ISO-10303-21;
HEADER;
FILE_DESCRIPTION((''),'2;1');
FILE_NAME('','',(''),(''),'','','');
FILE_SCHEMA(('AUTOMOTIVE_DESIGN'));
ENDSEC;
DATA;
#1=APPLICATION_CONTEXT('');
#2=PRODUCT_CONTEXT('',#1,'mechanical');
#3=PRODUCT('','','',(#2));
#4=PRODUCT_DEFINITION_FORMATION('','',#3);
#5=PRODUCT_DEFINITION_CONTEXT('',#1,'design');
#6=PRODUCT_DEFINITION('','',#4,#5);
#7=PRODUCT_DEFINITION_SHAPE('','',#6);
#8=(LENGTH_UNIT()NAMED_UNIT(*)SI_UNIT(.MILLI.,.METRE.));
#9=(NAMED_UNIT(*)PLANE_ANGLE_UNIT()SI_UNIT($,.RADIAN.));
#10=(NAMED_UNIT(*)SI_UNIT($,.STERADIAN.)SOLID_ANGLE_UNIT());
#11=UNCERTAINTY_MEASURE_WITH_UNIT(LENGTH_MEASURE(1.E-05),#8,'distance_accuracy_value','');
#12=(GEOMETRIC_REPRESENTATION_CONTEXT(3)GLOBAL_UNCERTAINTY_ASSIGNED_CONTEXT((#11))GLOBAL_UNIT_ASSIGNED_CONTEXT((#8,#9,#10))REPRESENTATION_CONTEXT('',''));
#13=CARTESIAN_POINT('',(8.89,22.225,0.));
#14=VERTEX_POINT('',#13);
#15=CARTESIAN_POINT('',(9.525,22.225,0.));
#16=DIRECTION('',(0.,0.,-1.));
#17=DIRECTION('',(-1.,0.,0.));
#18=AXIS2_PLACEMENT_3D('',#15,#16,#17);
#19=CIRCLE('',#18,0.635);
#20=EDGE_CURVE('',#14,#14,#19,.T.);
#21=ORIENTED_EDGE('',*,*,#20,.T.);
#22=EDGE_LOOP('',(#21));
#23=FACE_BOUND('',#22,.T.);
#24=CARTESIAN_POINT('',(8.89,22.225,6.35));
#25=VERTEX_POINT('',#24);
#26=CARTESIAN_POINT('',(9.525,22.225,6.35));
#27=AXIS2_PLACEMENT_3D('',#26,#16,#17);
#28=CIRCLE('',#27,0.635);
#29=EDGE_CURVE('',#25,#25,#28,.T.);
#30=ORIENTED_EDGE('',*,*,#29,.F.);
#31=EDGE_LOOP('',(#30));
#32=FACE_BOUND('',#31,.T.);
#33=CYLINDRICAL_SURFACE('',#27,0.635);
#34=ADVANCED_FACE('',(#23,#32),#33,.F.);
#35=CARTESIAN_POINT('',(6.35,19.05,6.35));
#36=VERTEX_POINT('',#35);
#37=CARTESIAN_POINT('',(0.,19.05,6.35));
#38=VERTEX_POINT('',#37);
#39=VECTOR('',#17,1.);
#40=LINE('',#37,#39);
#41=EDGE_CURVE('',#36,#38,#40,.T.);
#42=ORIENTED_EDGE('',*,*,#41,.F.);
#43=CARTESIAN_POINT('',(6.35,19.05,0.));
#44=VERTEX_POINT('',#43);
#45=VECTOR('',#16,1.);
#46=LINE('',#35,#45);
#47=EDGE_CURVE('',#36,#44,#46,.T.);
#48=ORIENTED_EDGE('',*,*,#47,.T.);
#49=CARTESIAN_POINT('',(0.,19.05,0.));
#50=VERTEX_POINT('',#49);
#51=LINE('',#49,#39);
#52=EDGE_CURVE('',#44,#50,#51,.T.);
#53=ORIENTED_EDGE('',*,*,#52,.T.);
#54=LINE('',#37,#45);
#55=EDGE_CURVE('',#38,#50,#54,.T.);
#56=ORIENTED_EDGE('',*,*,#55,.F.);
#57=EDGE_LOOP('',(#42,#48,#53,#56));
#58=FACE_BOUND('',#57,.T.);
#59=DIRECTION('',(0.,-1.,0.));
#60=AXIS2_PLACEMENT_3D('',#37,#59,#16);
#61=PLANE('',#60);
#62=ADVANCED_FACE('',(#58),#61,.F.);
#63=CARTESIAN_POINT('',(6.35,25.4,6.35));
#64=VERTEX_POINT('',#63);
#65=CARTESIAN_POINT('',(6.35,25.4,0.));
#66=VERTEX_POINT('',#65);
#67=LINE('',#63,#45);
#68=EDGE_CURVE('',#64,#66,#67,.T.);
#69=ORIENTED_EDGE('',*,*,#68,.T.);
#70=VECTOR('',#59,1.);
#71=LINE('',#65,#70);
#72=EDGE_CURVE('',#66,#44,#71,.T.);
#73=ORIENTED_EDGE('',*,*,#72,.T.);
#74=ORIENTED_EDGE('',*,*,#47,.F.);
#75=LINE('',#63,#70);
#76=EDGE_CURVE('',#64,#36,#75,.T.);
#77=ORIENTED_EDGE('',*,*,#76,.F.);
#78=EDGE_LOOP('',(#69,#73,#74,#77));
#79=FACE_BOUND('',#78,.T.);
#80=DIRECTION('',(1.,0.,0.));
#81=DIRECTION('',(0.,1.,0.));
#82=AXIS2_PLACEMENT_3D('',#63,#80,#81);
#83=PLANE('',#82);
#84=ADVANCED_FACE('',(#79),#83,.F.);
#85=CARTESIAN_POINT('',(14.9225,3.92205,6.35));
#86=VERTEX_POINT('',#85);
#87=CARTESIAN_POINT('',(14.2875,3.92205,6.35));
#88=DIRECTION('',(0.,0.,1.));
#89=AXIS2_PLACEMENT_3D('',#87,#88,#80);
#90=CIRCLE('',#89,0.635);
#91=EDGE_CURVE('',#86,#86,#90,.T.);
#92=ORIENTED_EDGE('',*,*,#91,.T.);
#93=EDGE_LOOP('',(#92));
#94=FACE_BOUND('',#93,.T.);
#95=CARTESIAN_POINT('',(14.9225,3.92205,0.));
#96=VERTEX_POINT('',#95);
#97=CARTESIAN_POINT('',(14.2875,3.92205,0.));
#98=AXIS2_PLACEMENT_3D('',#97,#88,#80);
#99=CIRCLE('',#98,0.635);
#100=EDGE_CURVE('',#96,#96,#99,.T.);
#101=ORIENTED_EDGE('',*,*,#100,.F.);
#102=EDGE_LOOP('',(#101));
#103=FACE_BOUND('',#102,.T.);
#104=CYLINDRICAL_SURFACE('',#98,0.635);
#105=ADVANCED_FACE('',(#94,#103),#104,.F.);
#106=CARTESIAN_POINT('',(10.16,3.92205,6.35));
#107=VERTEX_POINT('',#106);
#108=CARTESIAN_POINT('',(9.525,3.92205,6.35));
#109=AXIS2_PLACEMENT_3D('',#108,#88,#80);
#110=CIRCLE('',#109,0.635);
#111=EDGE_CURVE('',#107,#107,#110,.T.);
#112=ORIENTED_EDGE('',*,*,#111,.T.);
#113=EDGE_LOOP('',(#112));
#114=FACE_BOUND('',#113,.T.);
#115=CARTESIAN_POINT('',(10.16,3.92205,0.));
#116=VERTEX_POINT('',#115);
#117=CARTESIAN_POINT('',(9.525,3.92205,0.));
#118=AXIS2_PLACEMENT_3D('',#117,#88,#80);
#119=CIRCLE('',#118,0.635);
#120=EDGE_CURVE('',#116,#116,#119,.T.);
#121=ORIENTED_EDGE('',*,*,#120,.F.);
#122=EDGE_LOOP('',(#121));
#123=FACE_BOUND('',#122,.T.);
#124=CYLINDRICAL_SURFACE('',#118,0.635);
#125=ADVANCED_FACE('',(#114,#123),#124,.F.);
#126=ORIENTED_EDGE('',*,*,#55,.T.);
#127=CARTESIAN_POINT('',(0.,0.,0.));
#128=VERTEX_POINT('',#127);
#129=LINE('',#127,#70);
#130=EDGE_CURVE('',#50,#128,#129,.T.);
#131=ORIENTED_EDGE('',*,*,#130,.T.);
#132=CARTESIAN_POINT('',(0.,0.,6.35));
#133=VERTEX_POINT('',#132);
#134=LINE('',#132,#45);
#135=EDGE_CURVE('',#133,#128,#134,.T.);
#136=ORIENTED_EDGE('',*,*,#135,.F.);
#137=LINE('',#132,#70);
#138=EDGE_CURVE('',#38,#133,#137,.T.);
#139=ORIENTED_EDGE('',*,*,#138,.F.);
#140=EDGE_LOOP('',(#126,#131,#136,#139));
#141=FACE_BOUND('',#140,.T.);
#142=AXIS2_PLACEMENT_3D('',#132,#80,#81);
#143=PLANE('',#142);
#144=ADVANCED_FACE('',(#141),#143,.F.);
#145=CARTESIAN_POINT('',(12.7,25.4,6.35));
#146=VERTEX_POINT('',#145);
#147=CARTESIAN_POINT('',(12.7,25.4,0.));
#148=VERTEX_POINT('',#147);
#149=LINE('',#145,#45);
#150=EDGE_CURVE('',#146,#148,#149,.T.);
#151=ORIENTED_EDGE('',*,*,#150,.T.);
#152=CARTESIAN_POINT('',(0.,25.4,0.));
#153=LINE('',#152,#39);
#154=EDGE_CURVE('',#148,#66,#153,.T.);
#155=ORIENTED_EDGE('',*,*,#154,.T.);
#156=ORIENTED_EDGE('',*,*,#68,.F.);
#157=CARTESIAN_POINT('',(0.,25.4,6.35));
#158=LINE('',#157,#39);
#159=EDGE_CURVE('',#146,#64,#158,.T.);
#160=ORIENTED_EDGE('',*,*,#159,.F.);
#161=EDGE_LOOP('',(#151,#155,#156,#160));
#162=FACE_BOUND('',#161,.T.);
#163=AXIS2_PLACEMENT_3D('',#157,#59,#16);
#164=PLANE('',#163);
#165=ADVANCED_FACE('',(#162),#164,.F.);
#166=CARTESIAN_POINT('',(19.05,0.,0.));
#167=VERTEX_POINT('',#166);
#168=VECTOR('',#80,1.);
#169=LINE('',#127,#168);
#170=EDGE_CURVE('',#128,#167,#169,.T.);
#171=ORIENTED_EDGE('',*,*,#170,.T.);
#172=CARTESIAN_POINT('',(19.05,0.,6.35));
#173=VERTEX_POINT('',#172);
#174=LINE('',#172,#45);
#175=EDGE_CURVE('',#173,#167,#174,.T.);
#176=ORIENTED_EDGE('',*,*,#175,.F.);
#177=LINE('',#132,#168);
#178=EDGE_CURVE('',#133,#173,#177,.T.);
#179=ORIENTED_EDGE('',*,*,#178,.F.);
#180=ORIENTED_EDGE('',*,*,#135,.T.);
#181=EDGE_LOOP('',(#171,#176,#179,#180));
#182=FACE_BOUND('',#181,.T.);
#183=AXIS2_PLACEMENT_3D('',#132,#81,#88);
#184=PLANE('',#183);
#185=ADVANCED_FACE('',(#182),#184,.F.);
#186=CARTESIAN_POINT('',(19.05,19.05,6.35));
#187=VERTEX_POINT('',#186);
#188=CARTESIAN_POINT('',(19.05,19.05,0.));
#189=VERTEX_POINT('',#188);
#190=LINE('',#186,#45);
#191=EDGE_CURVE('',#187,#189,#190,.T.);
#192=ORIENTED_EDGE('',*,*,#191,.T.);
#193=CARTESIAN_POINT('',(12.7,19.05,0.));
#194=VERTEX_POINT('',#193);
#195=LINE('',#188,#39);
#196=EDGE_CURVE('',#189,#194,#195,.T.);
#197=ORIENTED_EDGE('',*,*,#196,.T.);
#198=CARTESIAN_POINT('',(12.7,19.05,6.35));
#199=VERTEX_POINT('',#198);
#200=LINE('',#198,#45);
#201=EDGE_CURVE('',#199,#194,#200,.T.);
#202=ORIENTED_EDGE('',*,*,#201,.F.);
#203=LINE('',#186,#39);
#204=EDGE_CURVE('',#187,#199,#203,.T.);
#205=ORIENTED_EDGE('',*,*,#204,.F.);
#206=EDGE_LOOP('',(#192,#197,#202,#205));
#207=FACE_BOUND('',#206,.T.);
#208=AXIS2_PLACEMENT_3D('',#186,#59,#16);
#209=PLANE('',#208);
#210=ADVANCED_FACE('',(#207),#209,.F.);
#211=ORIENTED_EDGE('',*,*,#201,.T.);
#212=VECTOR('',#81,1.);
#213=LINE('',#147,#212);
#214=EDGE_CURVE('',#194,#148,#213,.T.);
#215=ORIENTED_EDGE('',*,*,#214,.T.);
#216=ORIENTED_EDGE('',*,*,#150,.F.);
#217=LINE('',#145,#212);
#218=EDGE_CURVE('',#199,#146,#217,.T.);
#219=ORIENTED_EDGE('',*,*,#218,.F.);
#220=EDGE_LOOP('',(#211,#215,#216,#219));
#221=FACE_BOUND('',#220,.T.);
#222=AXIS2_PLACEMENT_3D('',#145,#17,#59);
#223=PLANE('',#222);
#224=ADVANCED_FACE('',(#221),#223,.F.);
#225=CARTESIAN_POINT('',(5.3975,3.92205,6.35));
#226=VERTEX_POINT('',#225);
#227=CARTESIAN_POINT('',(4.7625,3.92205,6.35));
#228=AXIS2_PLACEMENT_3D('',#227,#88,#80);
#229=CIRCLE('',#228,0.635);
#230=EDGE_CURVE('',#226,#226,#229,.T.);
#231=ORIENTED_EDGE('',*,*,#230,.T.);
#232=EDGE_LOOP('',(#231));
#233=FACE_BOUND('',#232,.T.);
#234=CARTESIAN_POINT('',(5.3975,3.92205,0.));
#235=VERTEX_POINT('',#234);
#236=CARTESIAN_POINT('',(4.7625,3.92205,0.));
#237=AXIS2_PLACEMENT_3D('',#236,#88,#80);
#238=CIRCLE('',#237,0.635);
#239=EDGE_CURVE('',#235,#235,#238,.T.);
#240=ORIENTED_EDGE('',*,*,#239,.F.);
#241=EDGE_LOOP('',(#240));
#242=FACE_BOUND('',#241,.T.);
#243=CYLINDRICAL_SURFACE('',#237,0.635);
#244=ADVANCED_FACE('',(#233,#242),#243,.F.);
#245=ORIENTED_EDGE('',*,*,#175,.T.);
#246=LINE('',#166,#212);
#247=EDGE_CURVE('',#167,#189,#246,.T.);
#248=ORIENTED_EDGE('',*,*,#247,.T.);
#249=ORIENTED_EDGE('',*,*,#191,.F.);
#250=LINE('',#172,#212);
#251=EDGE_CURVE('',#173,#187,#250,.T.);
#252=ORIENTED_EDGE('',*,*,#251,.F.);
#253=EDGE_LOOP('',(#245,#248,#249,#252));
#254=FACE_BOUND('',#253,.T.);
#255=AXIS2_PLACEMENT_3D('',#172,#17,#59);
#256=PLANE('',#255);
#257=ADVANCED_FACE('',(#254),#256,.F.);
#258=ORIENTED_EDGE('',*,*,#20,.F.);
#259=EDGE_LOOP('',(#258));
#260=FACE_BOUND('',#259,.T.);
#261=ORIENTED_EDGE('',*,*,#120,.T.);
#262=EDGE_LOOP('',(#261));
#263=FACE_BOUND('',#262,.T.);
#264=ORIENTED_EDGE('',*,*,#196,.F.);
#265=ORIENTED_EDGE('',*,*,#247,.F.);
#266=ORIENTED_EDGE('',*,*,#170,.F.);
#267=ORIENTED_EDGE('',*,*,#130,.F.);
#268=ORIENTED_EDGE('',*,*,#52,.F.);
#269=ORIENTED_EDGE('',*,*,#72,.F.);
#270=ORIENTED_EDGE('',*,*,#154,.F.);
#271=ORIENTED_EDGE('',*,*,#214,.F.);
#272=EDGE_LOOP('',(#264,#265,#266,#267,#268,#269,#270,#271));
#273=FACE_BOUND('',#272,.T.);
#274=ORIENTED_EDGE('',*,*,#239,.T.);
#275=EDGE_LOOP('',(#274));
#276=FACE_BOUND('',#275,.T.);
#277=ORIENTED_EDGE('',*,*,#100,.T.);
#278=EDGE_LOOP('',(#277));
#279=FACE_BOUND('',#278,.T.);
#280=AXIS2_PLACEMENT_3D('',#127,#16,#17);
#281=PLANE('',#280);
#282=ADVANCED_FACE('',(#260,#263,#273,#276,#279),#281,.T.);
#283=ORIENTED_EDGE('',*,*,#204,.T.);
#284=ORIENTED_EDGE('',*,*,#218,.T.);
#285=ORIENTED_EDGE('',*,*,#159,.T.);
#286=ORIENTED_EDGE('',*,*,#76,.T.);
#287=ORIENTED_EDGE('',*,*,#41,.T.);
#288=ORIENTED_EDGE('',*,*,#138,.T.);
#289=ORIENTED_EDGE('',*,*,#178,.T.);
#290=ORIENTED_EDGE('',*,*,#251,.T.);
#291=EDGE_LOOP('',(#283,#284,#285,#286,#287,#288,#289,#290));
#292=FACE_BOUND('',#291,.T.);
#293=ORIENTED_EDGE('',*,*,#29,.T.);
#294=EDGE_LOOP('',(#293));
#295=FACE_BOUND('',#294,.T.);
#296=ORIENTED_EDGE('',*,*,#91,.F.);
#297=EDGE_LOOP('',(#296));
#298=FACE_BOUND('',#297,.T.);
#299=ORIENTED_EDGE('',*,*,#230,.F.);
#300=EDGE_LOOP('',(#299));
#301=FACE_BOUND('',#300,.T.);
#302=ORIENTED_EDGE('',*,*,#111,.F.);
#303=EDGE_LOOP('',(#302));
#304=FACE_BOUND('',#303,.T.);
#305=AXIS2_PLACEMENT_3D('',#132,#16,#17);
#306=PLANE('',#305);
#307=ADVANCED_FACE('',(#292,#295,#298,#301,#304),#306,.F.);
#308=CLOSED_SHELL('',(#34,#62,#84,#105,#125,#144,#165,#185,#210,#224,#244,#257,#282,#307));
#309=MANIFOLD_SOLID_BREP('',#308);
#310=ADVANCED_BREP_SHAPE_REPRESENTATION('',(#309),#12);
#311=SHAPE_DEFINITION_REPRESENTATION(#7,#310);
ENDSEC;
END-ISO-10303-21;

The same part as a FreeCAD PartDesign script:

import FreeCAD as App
import Part
import Sketcher
from FreeCAD import Vector
Q = App.Units.Quantity


def add_polygon(sketch, points):
    """Adds a closed chain of lines whose ends are joined by coincident constraints."""
    first, n = sketch.GeometryCount, len(points)
    for a, b in zip(points, points[1:] + points[:1]):
        sketch.addGeometry(Part.LineSegment(App.Vector(*a, 0), App.Vector(*b, 0)), False)
    for i in range(n):
        sketch.addConstraint(Sketcher.Constraint("Coincident", first + i, 2, first + (i + 1) % n, 1))

doc = App.newDocument("Part")
params = doc.addObject("Spreadsheet::Sheet", "Params")
for row, (alias, value) in enumerate([
    ("sketch1_height", "1 in"),
    ("sketch1_width", "0.75 in"),
    ("pad1_length", "0.25 in"),
    ("sketch2_width", "0.25 in"),
    ("sketch3_width", "0.25 in"),
    ("sketch4_diameter", "0.05 in"),
    ("sketch5_diameter", "0.05 in"),
], start=1):
    params.set(f"A{row}", alias)
    params.set(f"B{row}", "=" + value)
    params.setAlias(f"B{row}", alias)

body = doc.addObject("PartDesign::Body", "Body")

# Sketch on XY plane
sketch1 = doc.addObject("Sketcher::SketchObject", "Sketch")
body.addObject(sketch1)
sketch1.AttachmentSupport = (doc.XY_Plane, [""])
sketch1.MapMode = "FlatFace"
add_polygon(sketch1, [(0, 25.4), (0, 0), (19.05, 0), (19.05, 25.4)])  # lines 0-3
sketch1.addConstraint([
    Sketcher.Constraint("Vertical", 0),
    Sketcher.Constraint("Horizontal", 1),
    Sketcher.Constraint("Vertical", 2),
    Sketcher.Constraint("Horizontal", 3),
    Sketcher.Constraint("Coincident", 0, 2, -1, 1),
    Sketcher.Constraint("DistanceY", 0, 2, 0, 1, Q("1 in")),
    Sketcher.Constraint("DistanceX", 1, 1, 1, 2, Q("0.75 in")),
])
sketch1.setExpression("Constraints[9]", "Params.sketch1_height")
sketch1.setExpression("Constraints[10]", "Params.sketch1_width")
pad1 = doc.addObject("PartDesign::Pad", "Pad")
body.addObject(pad1)
pad1.Profile = sketch1
pad1.setExpression("Length", "Params.pad1_length")

# Sketch on XY plane
sketch2 = doc.addObject("Sketcher::SketchObject", "Sketch001")
body.addObject(sketch2)
sketch2.AttachmentSupport = (doc.XY_Plane, [""])
sketch2.MapMode = "FlatFace"
add_polygon(sketch2, [(6.35, 25.4), (6.35, 19.05), (0, 19.05), (0, 25.4)])  # lines 0-3
sketch2.addConstraint([
    Sketcher.Constraint("Vertical", 0),
    Sketcher.Constraint("Horizontal", 1),
    Sketcher.Constraint("Vertical", 2),
    Sketcher.Constraint("Horizontal", 3),
    Sketcher.Constraint("PointOnObject", 1, 2, -2),
    Sketcher.Constraint("Equal", 3, 0),
    Sketcher.Constraint("DistanceY", -1, 1, 2, 2, Q("1 in")),
    Sketcher.Constraint("DistanceX", 1, 2, 1, 1, Q("0.25 in")),
])
sketch2.setExpression("Constraints[11]", "Params.sketch2_width")
pocket1 = doc.addObject("PartDesign::Pocket", "Pocket")
body.addObject(pocket1)
pocket1.Profile = sketch2
pocket1.Type = "ThroughAll"
pocket1.Reversed = True

# Sketch on XY plane
sketch3 = doc.addObject("Sketcher::SketchObject", "Sketch002")
body.addObject(sketch3)
sketch3.AttachmentSupport = (doc.XY_Plane, [""])
sketch3.MapMode = "FlatFace"
add_polygon(sketch3, [(19.05, 25.4), (19.05, 19.05), (12.7, 19.05), (12.7, 25.4)])  # lines 0-3
sketch3.addConstraint([
    Sketcher.Constraint("Vertical", 0),
    Sketcher.Constraint("Horizontal", 1),
    Sketcher.Constraint("Vertical", 2),
    Sketcher.Constraint("Horizontal", 3),
    Sketcher.Constraint("Equal", 3, 0),
    Sketcher.Constraint("DistanceY", -1, 1, 2, 2, Q("1 in")),
    Sketcher.Constraint("DistanceX", 1, 2, 1, 1, Q("0.25 in")),
    Sketcher.Constraint("DistanceX", -1, 1, 1, 2, Q("0.5 in")),
])
sketch3.setExpression("Constraints[10]", "Params.sketch3_width")
pocket2 = doc.addObject("PartDesign::Pocket", "Pocket001")
body.addObject(pocket2)
pocket2.Profile = sketch3
pocket2.Type = "ThroughAll"
pocket2.Reversed = True

# Sketch on XY plane
sketch4 = doc.addObject("Sketcher::SketchObject", "Sketch003")
body.addObject(sketch4)
sketch4.AttachmentSupport = (doc.XY_Plane, [""])
sketch4.MapMode = "FlatFace"
sketch4.addGeometry(Part.Circle(Vector(9.525, 22.225, 0), Vector(0, 0, 1), 0.635), False)
sketch4.addConstraint([
    Sketcher.Constraint("Diameter", 0, Q("0.05 in")),
    Sketcher.Constraint("DistanceX", -1, 1, 0, 3, Q("0.375 in")),
    Sketcher.Constraint("DistanceY", -1, 1, 0, 3, Q("0.875 in")),
])
sketch4.setExpression("Constraints[0]", "Params.sketch4_diameter")
pocket3 = doc.addObject("PartDesign::Pocket", "Pocket002")
body.addObject(pocket3)
pocket3.Profile = sketch4
pocket3.Type = "ThroughAll"
pocket3.Reversed = True

# Sketch on XY plane
sketch5 = doc.addObject("Sketcher::SketchObject", "Sketch004")
body.addObject(sketch5)
sketch5.AttachmentSupport = (doc.XY_Plane, [""])
sketch5.MapMode = "FlatFace"
sketch5.AttachmentOffset = App.Placement(Vector(0, 0, 0.25 * 25.4), App.Rotation())
sketch5.addGeometry([
    Part.Circle(Vector(14.2875, 3.92205, 0), Vector(0, 0, 1), 0.635),
    Part.Circle(Vector(9.525, 3.92205, 0), Vector(0, 0, 1), 0.635),
    Part.Circle(Vector(4.7625, 3.92205, 0), Vector(0, 0, 1), 0.635),
], False)
sketch5.addConstraint([
    Sketcher.Constraint("Equal", 0, 1),
    Sketcher.Constraint("Equal", 1, 2),
    Sketcher.Constraint("Horizontal", 0, 3, 1, 3),
    Sketcher.Constraint("Horizontal", 1, 3, 2, 3),
    Sketcher.Constraint("Diameter", 0, Q("0.05 in")),
    Sketcher.Constraint("DistanceX", -1, 1, 0, 3, Q("0.5625 in")),
    Sketcher.Constraint("DistanceX", -1, 1, 1, 3, Q("0.375 in")),
    Sketcher.Constraint("DistanceX", -1, 1, 2, 3, Q("0.1875 in")),
    Sketcher.Constraint("DistanceY", -1, 1, 0, 3, Q("3.92205 mm")),
])
sketch5.setExpression("Constraints[4]", "Params.sketch5_diameter")
pocket4 = doc.addObject("PartDesign::Pocket", "Pocket003")
body.addObject(pocket4)
pocket4.Profile = sketch5
pocket4.Type = "ThroughAll"

doc.recompute()
